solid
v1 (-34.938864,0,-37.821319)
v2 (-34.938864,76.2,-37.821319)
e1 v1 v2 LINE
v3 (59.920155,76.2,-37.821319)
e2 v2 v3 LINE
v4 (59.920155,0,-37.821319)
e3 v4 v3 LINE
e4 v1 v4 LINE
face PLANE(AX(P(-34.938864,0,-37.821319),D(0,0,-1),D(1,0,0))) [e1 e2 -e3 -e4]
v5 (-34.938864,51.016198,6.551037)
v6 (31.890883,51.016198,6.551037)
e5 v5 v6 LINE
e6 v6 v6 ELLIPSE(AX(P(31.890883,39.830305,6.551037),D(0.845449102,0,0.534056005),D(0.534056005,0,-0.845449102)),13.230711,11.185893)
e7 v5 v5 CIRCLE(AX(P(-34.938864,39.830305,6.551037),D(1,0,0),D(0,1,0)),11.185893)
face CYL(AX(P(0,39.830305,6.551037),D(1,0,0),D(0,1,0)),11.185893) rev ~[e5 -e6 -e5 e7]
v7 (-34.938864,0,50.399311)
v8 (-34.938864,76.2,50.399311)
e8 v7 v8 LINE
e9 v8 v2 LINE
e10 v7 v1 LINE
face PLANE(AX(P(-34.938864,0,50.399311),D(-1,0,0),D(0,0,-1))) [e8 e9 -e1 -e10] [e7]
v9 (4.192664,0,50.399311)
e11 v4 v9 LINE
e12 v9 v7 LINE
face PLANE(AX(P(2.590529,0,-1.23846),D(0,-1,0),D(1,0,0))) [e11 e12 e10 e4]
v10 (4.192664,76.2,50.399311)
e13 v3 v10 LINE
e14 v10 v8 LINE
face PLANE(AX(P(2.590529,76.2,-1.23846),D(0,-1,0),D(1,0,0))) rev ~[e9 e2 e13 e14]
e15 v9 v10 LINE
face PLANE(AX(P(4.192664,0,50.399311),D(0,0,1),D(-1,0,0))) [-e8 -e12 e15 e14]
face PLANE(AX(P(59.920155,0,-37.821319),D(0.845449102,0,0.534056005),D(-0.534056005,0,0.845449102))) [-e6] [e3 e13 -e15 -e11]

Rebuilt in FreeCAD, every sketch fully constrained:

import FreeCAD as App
import Part
import Sketcher
from FreeCAD import Vector
Q = App.Units.Quantity

doc = App.newDocument("Part")
body = doc.addObject("PartDesign::Body", "Body")

# Sketch on XZ plane
sketch1 = doc.addObject("Sketcher::SketchObject", "Sketch")
body.addObject(sketch1)
sketch1.AttachmentSupport = (doc.XZ_Plane, [""])
sketch1.MapMode = "FlatFace"
sketch1.addGeometry([
    Part.LineSegment(Vector(4, 50, 0), Vector(-35, 50, 0)),
    Part.LineSegment(Vector(-35, 50, 0), Vector(-35, -38, 0)),
    Part.LineSegment(Vector(-35, -38, 0), Vector(60, -38, 0)),
    Part.LineSegment(Vector(60, -38, 0), Vector(4, 50, 0)),
], False)
sketch1.addConstraint([
    Sketcher.Constraint("Coincident", 0, 2, 1, 1),
    Sketcher.Constraint("Coincident", 1, 2, 2, 1),
    Sketcher.Constraint("Coincident", 2, 2, 3, 1),
    Sketcher.Constraint("Coincident", 3, 2, 0, 1),
    Sketcher.Constraint("Horizontal", 0),
    Sketcher.Constraint("Vertical", 1),
    Sketcher.Constraint("Horizontal", 2),
    Sketcher.Constraint("DistanceX", 0, 2, 0, 1, Q("39.131528 mm")),
    Sketcher.Constraint("DistanceX", 2, 1, 2, 2, Q("94.859019 mm")),
    Sketcher.Constraint("DistanceY", 1, 2, 1, 1, Q("88.22063 mm")),
    Sketcher.Constraint("DistanceY", -1, 1, 0, 2, Q("50.399311 mm")),
    Sketcher.Constraint("DistanceX", 0, 2, -1, 1, Q("34.938864 mm")),
])
pad1 = doc.addObject("PartDesign::Pad", "Pad")
body.addObject(pad1)
pad1.Profile = sketch1
pad1.Length = Q("3 in")
pad1.Reversed = True

# Sketch on YZ plane
sketch2 = doc.addObject("Sketcher::SketchObject", "Sketch001")
body.addObject(sketch2)
sketch2.AttachmentSupport = (doc.YZ_Plane, [""])
sketch2.MapMode = "FlatFace"
sketch2.addGeometry(Part.Circle(Vector(40, 7, 0), Vector(0, 0, 1), 11), False)
sketch2.addConstraint([
    Sketcher.Constraint("Diameter", 0, Q("22.371786 mm")),
    Sketcher.Constraint("DistanceX", -1, 1, 0, 3, Q("39.830305 mm")),
    Sketcher.Constraint("DistanceY", -1, 1, 0, 3, Q("6.551037 mm")),
])
pocket1 = doc.addObject("PartDesign::Pocket", "Pocket")
body.addObject(pocket1)
pocket1.Profile = sketch2
pocket1.Length = Q("9 in")
pocket1.Midplane = True

doc.recompute()
